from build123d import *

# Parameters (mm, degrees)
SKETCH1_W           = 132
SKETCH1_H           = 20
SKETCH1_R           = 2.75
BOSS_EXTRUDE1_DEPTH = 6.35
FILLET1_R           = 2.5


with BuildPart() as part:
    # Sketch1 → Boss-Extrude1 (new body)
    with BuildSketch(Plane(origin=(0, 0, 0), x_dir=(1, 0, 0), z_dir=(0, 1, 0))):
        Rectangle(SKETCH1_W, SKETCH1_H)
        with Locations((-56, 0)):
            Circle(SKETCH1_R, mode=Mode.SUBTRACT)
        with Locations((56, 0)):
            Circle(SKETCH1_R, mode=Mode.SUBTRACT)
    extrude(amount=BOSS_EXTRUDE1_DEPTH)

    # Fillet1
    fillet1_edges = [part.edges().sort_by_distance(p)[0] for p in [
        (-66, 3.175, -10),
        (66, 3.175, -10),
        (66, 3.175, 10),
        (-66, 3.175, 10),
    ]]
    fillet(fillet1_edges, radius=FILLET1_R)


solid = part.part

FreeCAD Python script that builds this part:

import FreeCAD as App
import Part
import Sketcher


def edges_at(feature, points):
    """Names of the edges that pass closest to the given points."""
    edges = feature.Shape.Edges
    near = lambda p: min(range(len(edges)), key=lambda i: edges[i].distToShape(Part.Vertex(*p))[0])
    return sorted({f"Edge{near(p) + 1}" for p in points})

doc = App.newDocument("Part")
body = doc.addObject("PartDesign::Body", "Body")

# Sketch on XZ plane
sketch1 = body.newObject("Sketcher::SketchObject", "Sketch")
sketch1.AttachmentSupport = (doc.getObject("XZ_Plane"), [""])
sketch1.MapMode = "FlatFace"
sketch1.addGeometry(Part.LineSegment(App.Vector(-66, -10, 0), App.Vector(-66, 10, 0)), False)
sketch1.addGeometry(Part.LineSegment(App.Vector(-66, 10, 0), App.Vector(66, 10, 0)), False)
sketch1.addGeometry(Part.LineSegment(App.Vector(66, 10, 0), App.Vector(66, -10, 0)), False)
sketch1.addGeometry(Part.LineSegment(App.Vector(66, -10, 0), App.Vector(-66, -10, 0)), False)
sketch1.addGeometry(Part.Circle(App.Vector(-56, 0, 0), App.Vector(0, 0, 1), 2.8), False)
sketch1.addGeometry(Part.Circle(App.Vector(56, 0, 0), App.Vector(0, 0, 1), 2.8), False)
sketch1.addConstraint(Sketcher.Constraint("Coincident", 0, 2, 1, 1))
sketch1.addConstraint(Sketcher.Constraint("Coincident", 1, 2, 2, 1))
sketch1.addConstraint(Sketcher.Constraint("Coincident", 2, 2, 3, 1))
sketch1.addConstraint(Sketcher.Constraint("Coincident", 3, 2, 0, 1))
sketch1.addConstraint(Sketcher.Constraint("Vertical", 0))
sketch1.addConstraint(Sketcher.Constraint("Horizontal", 1))
sketch1.addConstraint(Sketcher.Constraint("Vertical", 2))
sketch1.addConstraint(Sketcher.Constraint("Horizontal", 3))
sketch1.addConstraint(Sketcher.Constraint("Equal", 4, 5))
sketch1.addConstraint(Sketcher.Constraint("Symmetric", 4, 3, 5, 3, -1, 1))
sketch1.addConstraint(Sketcher.Constraint("Symmetric", 0, 2, 2, 2, -1, 1))
sketch1.addConstraint(Sketcher.Constraint("PointOnObject", 4, 3, -1))
sketch1.addConstraint(Sketcher.Constraint("Diameter", 4, 5.5))
sketch1.addConstraint(Sketcher.Constraint("DistanceX", 1, 1, 1, 2, 132.0))
sketch1.addConstraint(Sketcher.Constraint("DistanceY", 0, 1, 0, 2, 20.0))
sketch1.addConstraint(Sketcher.Constraint("DistanceX", 4, 3, -1, 1, 56.0))
pad1 = body.newObject("PartDesign::Pad", "Pad")
pad1.Profile = sketch1
pad1.Length = 6.35
pad1.Reversed = True
doc.recompute()

fillet = body.newObject("PartDesign::Fillet", "Fillet")
fillet.Base = (pad1, edges_at(pad1, [
    (-66, 3.175, -10),
    (66, 3.175, -10),
    (66, 3.175, 10),
    (-66, 3.175, 10),
]))
fillet.Radius = 2.5

doc.recompute()
